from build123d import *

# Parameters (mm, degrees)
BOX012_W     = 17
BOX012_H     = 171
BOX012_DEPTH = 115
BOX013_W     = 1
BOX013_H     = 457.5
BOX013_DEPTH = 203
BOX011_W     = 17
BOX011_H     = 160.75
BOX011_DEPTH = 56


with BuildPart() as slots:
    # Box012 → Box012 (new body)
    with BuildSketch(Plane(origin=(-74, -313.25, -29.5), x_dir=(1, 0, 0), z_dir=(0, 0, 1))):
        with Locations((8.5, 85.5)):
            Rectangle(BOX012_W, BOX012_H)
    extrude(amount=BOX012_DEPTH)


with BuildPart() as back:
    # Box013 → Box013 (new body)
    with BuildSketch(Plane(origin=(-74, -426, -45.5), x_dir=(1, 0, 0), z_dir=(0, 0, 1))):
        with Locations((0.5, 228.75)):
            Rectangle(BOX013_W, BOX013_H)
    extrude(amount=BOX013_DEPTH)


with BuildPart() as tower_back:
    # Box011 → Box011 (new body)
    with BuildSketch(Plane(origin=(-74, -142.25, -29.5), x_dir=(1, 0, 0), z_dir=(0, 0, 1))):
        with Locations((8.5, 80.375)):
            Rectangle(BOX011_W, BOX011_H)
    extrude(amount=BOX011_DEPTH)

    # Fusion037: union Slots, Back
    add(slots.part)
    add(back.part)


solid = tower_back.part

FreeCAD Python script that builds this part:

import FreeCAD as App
import Part
import Sketcher
from FreeCAD import Vector

doc = App.newDocument("Part")
body = doc.addObject("PartDesign::Body", "Body")

sketch1 = body.newObject("Sketcher::SketchObject", "Sketch")
sketch1.AttachmentSupport = (doc.getObject("XY_Plane"), [""])
sketch1.MapMode = "FlatFace"
sketch1.AttachmentOffset = App.Placement(Vector(0, 0, -29.5), App.Rotation())
sketch1.addGeometry(Part.LineSegment(Vector(-74, -142.25, 0), Vector(-74, -313.25, 0)), False)
sketch1.addGeometry(Part.LineSegment(Vector(-74, -313.25, 0), Vector(-57, -313.25, 0)), False)
sketch1.addGeometry(Part.LineSegment(Vector(-57, -313.25, 0), Vector(-57, -142.25, 0)), False)
sketch1.addGeometry(Part.LineSegment(Vector(-57, -142.25, 0), Vector(-74, -142.25, 0)), False)
sketch1.addConstraint(Sketcher.Constraint("Coincident", 0, 2, 1, 1))
sketch1.addConstraint(Sketcher.Constraint("Coincident", 1, 2, 2, 1))
sketch1.addConstraint(Sketcher.Constraint("Coincident", 2, 2, 3, 1))
sketch1.addConstraint(Sketcher.Constraint("Coincident", 3, 2, 0, 1))
sketch1.addConstraint(Sketcher.Constraint("Vertical", 0))
sketch1.addConstraint(Sketcher.Constraint("Horizontal", 1))
sketch1.addConstraint(Sketcher.Constraint("Vertical", 2))
sketch1.addConstraint(Sketcher.Constraint("Horizontal", 3))
sketch1.addConstraint(Sketcher.Constraint("DistanceX", 1, 1, 1, 2, 17.0))
sketch1.addConstraint(Sketcher.Constraint("DistanceY", 0, 2, 0, 1, 171.0))
sketch1.addConstraint(Sketcher.Constraint("DistanceX", 0, 2, -1, 1, 74.0))
sketch1.addConstraint(Sketcher.Constraint("DistanceY", 0, 2, -1, 1, 313.25))
pad1 = body.newObject("PartDesign::Pad", "Pad")
pad1.Profile = sketch1
pad1.Length = 115
body2 = doc.addObject("PartDesign::Body", "Body001")

sketch2 = body2.newObject("Sketcher::SketchObject", "Sketch001")
sketch2.AttachmentSupport = (doc.getObject("XY_Plane001"), [""])
sketch2.MapMode = "FlatFace"
sketch2.AttachmentOffset = App.Placement(Vector(0, 0, -45.5), App.Rotation())
sketch2.addGeometry(Part.LineSegment(Vector(-74, 31.5, 0), Vector(-74, -426, 0)), False)
sketch2.addGeometry(Part.LineSegment(Vector(-74, -426, 0), Vector(-73, -426, 0)), False)
sketch2.addGeometry(Part.LineSegment(Vector(-73, -426, 0), Vector(-73, 31.5, 0)), False)
sketch2.addGeometry(Part.LineSegment(Vector(-73, 31.5, 0), Vector(-74, 31.5, 0)), False)
sketch2.addConstraint(Sketcher.Constraint("Coincident", 0, 2, 1, 1))
sketch2.addConstraint(Sketcher.Constraint("Coincident", 1, 2, 2, 1))
sketch2.addConstraint(Sketcher.Constraint("Coincident", 2, 2, 3, 1))
sketch2.addConstraint(Sketcher.Constraint("Coincident", 3, 2, 0, 1))
sketch2.addConstraint(Sketcher.Constraint("Vertical", 0))
sketch2.addConstraint(Sketcher.Constraint("Horizontal", 1))
sketch2.addConstraint(Sketcher.Constraint("Vertical", 2))
sketch2.addConstraint(Sketcher.Constraint("Horizontal", 3))
sketch2.addConstraint(Sketcher.Constraint("DistanceX", 1, 1, 1, 2, 1.0))
sketch2.addConstraint(Sketcher.Constraint("DistanceY", 0, 2, 0, 1, 457.5))
sketch2.addConstraint(Sketcher.Constraint("DistanceX", 0, 2, -1, 1, 74.0))
sketch2.addConstraint(Sketcher.Constraint("DistanceY", 0, 2, -1, 1, 426.0))
pad2 = body2.newObject("PartDesign::Pad", "Pad001")
pad2.Profile = sketch2
pad2.Length = 203
body3 = doc.addObject("PartDesign::Body", "Body002")

sketch3 = body3.newObject("Sketcher::SketchObject", "Sketch002")
sketch3.AttachmentSupport = (doc.getObject("XY_Plane002"), [""])
sketch3.MapMode = "FlatFace"
sketch3.AttachmentOffset = App.Placement(Vector(0, 0, -29.5), App.Rotation())
sketch3.addGeometry(Part.LineSegment(Vector(-74, 18.5, 0), Vector(-74, -142.25, 0)), False)
sketch3.addGeometry(Part.LineSegment(Vector(-74, -142.25, 0), Vector(-57, -142.25, 0)), False)
sketch3.addGeometry(Part.LineSegment(Vector(-57, -142.25, 0), Vector(-57, 18.5, 0)), False)
sketch3.addGeometry(Part.LineSegment(Vector(-57, 18.5, 0), Vector(-74, 18.5, 0)), False)
sketch3.addConstraint(Sketcher.Constraint("Coincident", 0, 2, 1, 1))
sketch3.addConstraint(Sketcher.Constraint("Coincident", 1, 2, 2, 1))
sketch3.addConstraint(Sketcher.Constraint("Coincident", 2, 2, 3, 1))
sketch3.addConstraint(Sketcher.Constraint("Coincident", 3, 2, 0, 1))
sketch3.addConstraint(Sketcher.Constraint("Vertical", 0))
sketch3.addConstraint(Sketcher.Constraint("Horizontal", 1))
sketch3.addConstraint(Sketcher.Constraint("Vertical", 2))
sketch3.addConstraint(Sketcher.Constraint("Horizontal", 3))
sketch3.addConstraint(Sketcher.Constraint("DistanceX", 1, 1, 1, 2, 17.0))
sketch3.addConstraint(Sketcher.Constraint("DistanceX", 0, 2, -1, 1, 74.0))
sketch3.addConstraint(Sketcher.Constraint("DistanceY", 0, 2, 0, 1, 160.75))
sketch3.addConstraint(Sketcher.Constraint("DistanceY", -1, 1, 2, 2, 18.5))
pad3 = body3.newObject("PartDesign::Pad", "Pad002")
pad3.Profile = sketch3
pad3.Length = 56
doc.recompute()

boolean = body3.newObject("PartDesign::Boolean", "Boolean")
boolean.Type = "Fuse"
boolean.addObjects([body])
doc.recompute()

boolean2 = body3.newObject("PartDesign::Boolean", "Boolean001")
boolean2.Type = "Fuse"
boolean2.addObjects([body2])

doc.recompute()
